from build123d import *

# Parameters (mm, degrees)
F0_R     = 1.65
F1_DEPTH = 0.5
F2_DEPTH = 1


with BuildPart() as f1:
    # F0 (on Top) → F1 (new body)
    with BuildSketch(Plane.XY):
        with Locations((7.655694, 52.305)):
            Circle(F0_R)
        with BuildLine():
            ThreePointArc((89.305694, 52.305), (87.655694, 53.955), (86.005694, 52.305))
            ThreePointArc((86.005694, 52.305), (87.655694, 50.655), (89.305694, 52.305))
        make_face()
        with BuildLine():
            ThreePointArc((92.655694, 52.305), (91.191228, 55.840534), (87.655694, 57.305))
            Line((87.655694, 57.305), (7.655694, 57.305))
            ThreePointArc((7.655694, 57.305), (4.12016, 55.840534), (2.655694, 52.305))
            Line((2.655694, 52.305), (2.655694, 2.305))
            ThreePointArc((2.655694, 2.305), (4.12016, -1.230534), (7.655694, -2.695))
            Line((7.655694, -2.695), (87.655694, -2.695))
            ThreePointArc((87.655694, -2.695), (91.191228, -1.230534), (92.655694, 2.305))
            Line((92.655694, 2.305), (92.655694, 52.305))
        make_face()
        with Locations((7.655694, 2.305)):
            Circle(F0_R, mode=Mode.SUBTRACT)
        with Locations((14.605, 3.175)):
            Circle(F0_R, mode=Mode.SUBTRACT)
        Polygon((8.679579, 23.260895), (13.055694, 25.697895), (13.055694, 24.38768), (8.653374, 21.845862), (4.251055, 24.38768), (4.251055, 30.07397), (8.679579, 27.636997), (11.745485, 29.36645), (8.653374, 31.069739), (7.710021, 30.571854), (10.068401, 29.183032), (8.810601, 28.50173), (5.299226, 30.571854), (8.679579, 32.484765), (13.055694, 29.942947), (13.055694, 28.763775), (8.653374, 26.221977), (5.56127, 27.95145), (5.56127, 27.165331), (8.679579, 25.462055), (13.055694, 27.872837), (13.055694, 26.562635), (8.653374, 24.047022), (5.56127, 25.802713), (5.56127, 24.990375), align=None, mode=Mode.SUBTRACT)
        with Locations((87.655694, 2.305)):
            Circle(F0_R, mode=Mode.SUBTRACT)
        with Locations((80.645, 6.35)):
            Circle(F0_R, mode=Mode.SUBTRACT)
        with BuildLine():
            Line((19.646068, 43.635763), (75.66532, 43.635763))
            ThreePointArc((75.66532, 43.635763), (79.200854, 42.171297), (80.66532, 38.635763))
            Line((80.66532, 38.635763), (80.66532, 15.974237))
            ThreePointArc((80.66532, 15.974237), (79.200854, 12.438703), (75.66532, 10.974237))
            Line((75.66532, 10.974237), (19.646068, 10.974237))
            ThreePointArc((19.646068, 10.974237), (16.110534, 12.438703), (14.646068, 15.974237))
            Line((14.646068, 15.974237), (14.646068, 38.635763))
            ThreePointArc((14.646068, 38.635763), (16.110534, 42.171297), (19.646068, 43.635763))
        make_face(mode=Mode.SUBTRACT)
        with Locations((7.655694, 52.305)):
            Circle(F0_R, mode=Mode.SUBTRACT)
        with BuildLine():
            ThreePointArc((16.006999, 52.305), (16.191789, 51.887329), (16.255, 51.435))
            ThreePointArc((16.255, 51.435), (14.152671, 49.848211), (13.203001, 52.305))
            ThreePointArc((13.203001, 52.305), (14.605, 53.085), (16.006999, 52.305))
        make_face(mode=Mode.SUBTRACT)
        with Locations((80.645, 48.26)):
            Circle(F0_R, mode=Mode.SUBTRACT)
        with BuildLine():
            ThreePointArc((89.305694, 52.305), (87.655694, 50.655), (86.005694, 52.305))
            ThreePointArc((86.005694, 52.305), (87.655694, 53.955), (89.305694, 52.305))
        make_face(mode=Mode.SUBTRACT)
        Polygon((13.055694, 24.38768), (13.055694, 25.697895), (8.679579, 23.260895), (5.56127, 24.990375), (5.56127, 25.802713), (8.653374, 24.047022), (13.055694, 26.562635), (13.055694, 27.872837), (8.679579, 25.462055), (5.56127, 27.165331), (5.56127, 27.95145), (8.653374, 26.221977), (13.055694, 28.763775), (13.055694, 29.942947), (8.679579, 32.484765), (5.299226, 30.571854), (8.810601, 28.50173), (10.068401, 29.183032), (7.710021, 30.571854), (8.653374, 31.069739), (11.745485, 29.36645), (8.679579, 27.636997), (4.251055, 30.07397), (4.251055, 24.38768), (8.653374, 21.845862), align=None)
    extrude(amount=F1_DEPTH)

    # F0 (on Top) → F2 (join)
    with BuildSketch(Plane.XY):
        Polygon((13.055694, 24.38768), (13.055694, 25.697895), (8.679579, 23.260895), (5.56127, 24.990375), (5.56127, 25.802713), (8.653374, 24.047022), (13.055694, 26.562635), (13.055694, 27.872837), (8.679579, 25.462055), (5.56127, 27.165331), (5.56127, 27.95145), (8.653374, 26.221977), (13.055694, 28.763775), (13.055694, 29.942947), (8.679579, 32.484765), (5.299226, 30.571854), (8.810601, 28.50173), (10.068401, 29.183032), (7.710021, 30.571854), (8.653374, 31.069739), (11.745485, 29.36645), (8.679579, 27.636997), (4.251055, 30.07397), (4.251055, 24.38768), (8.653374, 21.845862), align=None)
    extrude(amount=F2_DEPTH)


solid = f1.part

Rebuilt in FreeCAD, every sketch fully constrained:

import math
import FreeCAD as App
import Part
import Sketcher
Q = App.Units.Quantity

doc = App.newDocument("Part")
body = doc.addObject("PartDesign::Body", "Body")

# Sketch on XY plane
sketch1 = body.newObject("Sketcher::SketchObject", "Sketch")
sketch1.AttachmentSupport = (doc.getObject("XY_Plane"), [""])
sketch1.MapMode = "FlatFace"
sketch1.addGeometry(Part.ArcOfCircle(Part.Circle(App.Vector(87.7, 52.3, 0), App.Vector(0, 0, 1), 5), math.radians(0), math.radians(90)), False)
sketch1.addGeometry(Part.LineSegment(App.Vector(87.7, 57.3, 0), App.Vector(7.7, 57.3, 0)), False)
sketch1.addGeometry(Part.ArcOfCircle(Part.Circle(App.Vector(7.7, 52.3, 0), App.Vector(0, 0, 1), 5), math.radians(90), math.radians(180)), False)
sketch1.addGeometry(Part.LineSegment(App.Vector(2.7, 52.3, 0), App.Vector(2.7, 2.3, 0)), False)
sketch1.addGeometry(Part.ArcOfCircle(Part.Circle(App.Vector(7.7, 2.3, 0), App.Vector(0, 0, 1), 5), math.radians(180), math.radians(270)), False)
sketch1.addGeometry(Part.LineSegment(App.Vector(7.7, -2.7, 0), App.Vector(87.7, -2.7, 0)), False)
sketch1.addGeometry(Part.ArcOfCircle(Part.Circle(App.Vector(87.7, 2.3, 0), App.Vector(0, 0, 1), 5), math.radians(-90), math.radians(0)), False)
sketch1.addGeometry(Part.LineSegment(App.Vector(92.7, 2.3, 0), App.Vector(92.7, 52.3, 0)), False)
sketch1.addGeometry(Part.Circle(App.Vector(7.7, 2.3, 0), App.Vector(0, 0, 1), 1.6), False)
sketch1.addGeometry(Part.Circle(App.Vector(14.6, 3.2, 0), App.Vector(0, 0, 1), 1.6), False)
sketch1.addGeometry(Part.Circle(App.Vector(87.7, 2.3, 0), App.Vector(0, 0, 1), 1.6), False)
sketch1.addGeometry(Part.Circle(App.Vector(80.6, 6.3, 0), App.Vector(0, 0, 1), 1.6), False)
sketch1.addGeometry(Part.Circle(App.Vector(7.7, 52.3, 0), App.Vector(0, 0, 1), 1.6), False)
sketch1.addGeometry(Part.ArcOfCircle(Part.Circle(App.Vector(14.6, 51.4, 0), App.Vector(0, 0, 1), 1.7), math.radians(32), math.radians(148)), False)
sketch1.addGeometry(Part.ArcOfCircle(Part.Circle(App.Vector(14.6, 51.4, 0), App.Vector(0, 0, 1), 1.6), math.radians(0), math.radians(32)), False)
sketch1.addGeometry(Part.ArcOfCircle(Part.Circle(App.Vector(14.6, 51.4, 0), App.Vector(0, 0, 1), 1.7), math.radians(148), math.radians(360)), False)
sketch1.addGeometry(Part.ArcOfCircle(Part.Circle(App.Vector(19.6, 38.6, 0), App.Vector(0, 0, 1), 5), math.radians(90), math.radians(180)), False)
sketch1.addGeometry(Part.LineSegment(App.Vector(19.6, 43.6, 0), App.Vector(75.7, 43.6, 0)), False)
sketch1.addGeometry(Part.ArcOfCircle(Part.Circle(App.Vector(75.7, 38.6, 0), App.Vector(0, 0, 1), 5), math.radians(0), math.radians(90)), False)
sketch1.addGeometry(Part.LineSegment(App.Vector(80.7, 38.6, 0), App.Vector(80.7, 16, 0)), False)
sketch1.addGeometry(Part.ArcOfCircle(Part.Circle(App.Vector(75.7, 16, 0), App.Vector(0, 0, 1), 5), math.radians(-90), math.radians(0)), False)
sketch1.addGeometry(Part.LineSegment(App.Vector(75.7, 11, 0), App.Vector(19.6, 11, 0)), False)
sketch1.addGeometry(Part.ArcOfCircle(Part.Circle(App.Vector(19.6, 16, 0), App.Vector(0, 0, 1), 5), math.radians(180), math.radians(270)), False)
sketch1.addGeometry(Part.LineSegment(App.Vector(14.6, 16, 0), App.Vector(14.6, 38.6, 0)), False)
sketch1.addGeometry(Part.Circle(App.Vector(80.6, 48.3, 0), App.Vector(0, 0, 1), 1.6), False)
sketch1.addGeometry(Part.Circle(App.Vector(87.7, 52.3, 0), App.Vector(0, 0, 1), 1.6), False)
sketch1.addConstraint(Sketcher.Constraint("Tangent", 0, 2, 1, 1))
sketch1.addConstraint(Sketcher.Constraint("Tangent", 1, 2, 2, 1))
sketch1.addConstraint(Sketcher.Constraint("Tangent", 2, 2, 3, 1))
sketch1.addConstraint(Sketcher.Constraint("Tangent", 3, 2, 4, 1))
sketch1.addConstraint(Sketcher.Constraint("Tangent", 4, 2, 5, 1))
sketch1.addConstraint(Sketcher.Constraint("Tangent", 5, 2, 6, 1))
sketch1.addConstraint(Sketcher.Constraint("Tangent", 6, 2, 7, 1))
sketch1.addConstraint(Sketcher.Constraint("Tangent", 7, 2, 0, 1))
sketch1.addConstraint(Sketcher.Constraint("Tangent", 13, 1, 14, 2))
sketch1.addConstraint(Sketcher.Constraint("Tangent", 14, 1, 15, 2))
sketch1.addConstraint(Sketcher.Constraint("Tangent", 15, 1, 13, 2))
sketch1.addConstraint(Sketcher.Constraint("Tangent", 16, 1, 17, 1))
sketch1.addConstraint(Sketcher.Constraint("Tangent", 17, 2, 18, 2))
sketch1.addConstraint(Sketcher.Constraint("Tangent", 18, 1, 19, 1))
sketch1.addConstraint(Sketcher.Constraint("Tangent", 19, 2, 20, 2))
sketch1.addConstraint(Sketcher.Constraint("Tangent", 20, 1, 21, 1))
sketch1.addConstraint(Sketcher.Constraint("Tangent", 21, 2, 22, 2))
sketch1.addConstraint(Sketcher.Constraint("Tangent", 22, 1, 23, 1))
sketch1.addConstraint(Sketcher.Constraint("Tangent", 23, 2, 16, 2))
sketch1.addConstraint(Sketcher.Constraint("Horizontal", 1))
sketch1.addConstraint(Sketcher.Constraint("Vertical", 3))
sketch1.addConstraint(Sketcher.Constraint("Horizontal", 5))
sketch1.addConstraint(Sketcher.Constraint("Vertical", 7))
sketch1.addConstraint(Sketcher.Constraint("Horizontal", 17))
sketch1.addConstraint(Sketcher.Constraint("Vertical", 19))
sketch1.addConstraint(Sketcher.Constraint("Horizontal", 21))
sketch1.addConstraint(Sketcher.Constraint("Vertical", 23))
sketch1.addConstraint(Sketcher.Constraint("Coincident", 8, 3, 4, 3))
sketch1.addConstraint(Sketcher.Constraint("Coincident", 10, 3, 6, 3))
sketch1.addConstraint(Sketcher.Constraint("Coincident", 12, 3, 2, 3))
sketch1.addConstraint(Sketcher.Constraint("Coincident", 25, 3, 0, 3))
sketch1.addConstraint(Sketcher.Constraint("Equal", 0, 2))
sketch1.addConstraint(Sketcher.Constraint("Equal", 2, 4))
sketch1.addConstraint(Sketcher.Constraint("Equal", 4, 6))
sketch1.addConstraint(Sketcher.Constraint("Equal", 8, 9))
sketch1.addConstraint(Sketcher.Constraint("Equal", 9, 10))
sketch1.addConstraint(Sketcher.Constraint("Equal", 10, 11))
sketch1.addConstraint(Sketcher.Constraint("Equal", 11, 12))
sketch1.addConstraint(Sketcher.Constraint("Equal", 12, 13))
sketch1.addConstraint(Sketcher.Constraint("Equal", 6, 16))
sketch1.addConstraint(Sketcher.Constraint("Equal", 16, 18))
sketch1.addConstraint(Sketcher.Constraint("Equal", 18, 20))
sketch1.addConstraint(Sketcher.Constraint("Equal", 20, 22))
sketch1.addConstraint(Sketcher.Constraint("Equal", 15, 24))
sketch1.addConstraint(Sketcher.Constraint("Equal", 24, 25))
sketch1.addConstraint(Sketcher.Constraint("Horizontal", 7, 2, 13, 1))
sketch1.addConstraint(Sketcher.Constraint("Horizontal", 15, 3, 14, 1))
sketch1.addConstraint(Sketcher.Constraint("Horizontal", 13, 1, 15, 1))
sketch1.addConstraint(Sketcher.Constraint("Vertical", 9, 3, 13, 3))
sketch1.addConstraint(Sketcher.Constraint("Vertical", 11, 3, 24, 3))
sketch1.addConstraint(Sketcher.Constraint("Radius", 0, Q("5 mm")))
sketch1.addConstraint(Sketcher.Constraint("Diameter", 8, Q("3.3 mm")))
sketch1.addConstraint(Sketcher.Constraint("DistanceX", 1, 2, 1, 1, Q("80 mm")))
sketch1.addConstraint(Sketcher.Constraint("DistanceY", 3, 2, 3, 1, Q("50 mm")))
sketch1.addConstraint(Sketcher.Constraint("DistanceY", -1, 1, 11, 3, Q("6.35 mm")))
sketch1.addConstraint(Sketcher.Constraint("DistanceY", -1, 1, 24, 3, Q("48.26 mm")))
sketch1.addConstraint(Sketcher.Constraint("DistanceY", 8, 3, 9, 3, Q("0.87 mm")))
sketch1.addConstraint(Sketcher.Constraint("DistanceX", 9, 3, 11, 3, Q("66.04 mm")))
sketch1.addConstraint(Sketcher.Constraint("DistanceY", 13, 3, 12, 3, Q("0.870001 mm")))
sketch1.addConstraint(Sketcher.Constraint("DistanceY", -1, 1, 0, 3, Q("52.305 mm")))
sketch1.addConstraint(Sketcher.Constraint("DistanceX", -1, 1, 9, 3, Q("14.605 mm")))
sketch1.addConstraint(Sketcher.Constraint("DistanceX", 17, 1, 17, 2, Q("56.019252 mm")))
sketch1.addConstraint(Sketcher.Constraint("DistanceY", 19, 2, 19, 1, Q("22.661526 mm")))
sketch1.addConstraint(Sketcher.Constraint("DistanceX", -1, 1, 18, 3, Q("75.66532 mm")))
sketch1.addConstraint(Sketcher.Constraint("DistanceX", 2, 3, 14, 3, Q("6.949308 mm")))
sketch1.addConstraint(Sketcher.Constraint("DistanceY", 16, 1, 14, 3, Q("7.799238 mm")))
pad1 = body.newObject("PartDesign::Pad", "Pad")
pad1.Profile = sketch1
pad1.Length = 0.5

# Sketch on XY plane
sketch2 = body.newObject("Sketcher::SketchObject", "Sketch001")
sketch2.AttachmentSupport = (doc.getObject("XY_Plane"), [""])
sketch2.MapMode = "FlatFace"
sketch2.addGeometry(Part.LineSegment(App.Vector(13.1, 24.4, 0), App.Vector(13.1, 25.7, 0)), False)
sketch2.addGeometry(Part.LineSegment(App.Vector(13.1, 25.7, 0), App.Vector(8.7, 23.3, 0)), False)
sketch2.addGeometry(Part.LineSegment(App.Vector(8.7, 23.3, 0), App.Vector(5.6, 25, 0)), False)
sketch2.addGeometry(Part.LineSegment(App.Vector(5.6, 25, 0), App.Vector(5.6, 25.8, 0)), False)
sketch2.addGeometry(Part.LineSegment(App.Vector(5.6, 25.8, 0), App.Vector(8.7, 24, 0)), False)
sketch2.addGeometry(Part.LineSegment(App.Vector(8.7, 24, 0), App.Vector(13.1, 26.6, 0)), False)
sketch2.addGeometry(Part.LineSegment(App.Vector(13.1, 26.6, 0), App.Vector(13.1, 27.9, 0)), False)
sketch2.addGeometry(Part.LineSegment(App.Vector(13.1, 27.9, 0), App.Vector(8.7, 25.5, 0)), False)
sketch2.addGeometry(Part.LineSegment(App.Vector(8.7, 25.5, 0), App.Vector(5.6, 27.2, 0)), False)
sketch2.addGeometry(Part.LineSegment(App.Vector(5.6, 27.2, 0), App.Vector(5.6, 28, 0)), False)
sketch2.addGeometry(Part.LineSegment(App.Vector(5.6, 28, 0), App.Vector(8.7, 26.2, 0)), False)
sketch2.addGeometry(Part.LineSegment(App.Vector(8.7, 26.2, 0), App.Vector(13.1, 28.8, 0)), False)
sketch2.addGeometry(Part.LineSegment(App.Vector(13.1, 28.8, 0), App.Vector(13.1, 29.9, 0)), False)
sketch2.addGeometry(Part.LineSegment(App.Vector(13.1, 29.9, 0), App.Vector(8.7, 32.5, 0)), False)
sketch2.addGeometry(Part.LineSegment(App.Vector(8.7, 32.5, 0), App.Vector(5.3, 30.6, 0)), False)
sketch2.addGeometry(Part.LineSegment(App.Vector(5.3, 30.6, 0), App.Vector(8.8, 28.5, 0)), False)
sketch2.addGeometry(Part.LineSegment(App.Vector(8.8, 28.5, 0), App.Vector(10.1, 29.2, 0)), False)
sketch2.addGeometry(Part.LineSegment(App.Vector(10.1, 29.2, 0), App.Vector(7.7, 30.6, 0)), False)
sketch2.addGeometry(Part.LineSegment(App.Vector(7.7, 30.6, 0), App.Vector(8.7, 31.1, 0)), False)
sketch2.addGeometry(Part.LineSegment(App.Vector(8.7, 31.1, 0), App.Vector(11.7, 29.4, 0)), False)
sketch2.addGeometry(Part.LineSegment(App.Vector(11.7, 29.4, 0), App.Vector(8.7, 27.6, 0)), False)
sketch2.addGeometry(Part.LineSegment(App.Vector(8.7, 27.6, 0), App.Vector(4.3, 30.1, 0)), False)
sketch2.addGeometry(Part.LineSegment(App.Vector(4.3, 30.1, 0), App.Vector(4.3, 24.4, 0)), False)
sketch2.addGeometry(Part.LineSegment(App.Vector(4.3, 24.4, 0), App.Vector(8.7, 21.8, 0)), False)
sketch2.addGeometry(Part.LineSegment(App.Vector(8.7, 21.8, 0), App.Vector(13.1, 24.4, 0)), False)
sketch2.addConstraint(Sketcher.Constraint("Coincident", 0, 2, 1, 1))
sketch2.addConstraint(Sketcher.Constraint("Coincident", 1, 2, 2, 1))
sketch2.addConstraint(Sketcher.Constraint("Coincident", 2, 2, 3, 1))
sketch2.addConstraint(Sketcher.Constraint("Coincident", 3, 2, 4, 1))
sketch2.addConstraint(Sketcher.Constraint("Coincident", 4, 2, 5, 1))
sketch2.addConstraint(Sketcher.Constraint("Coincident", 5, 2, 6, 1))
sketch2.addConstraint(Sketcher.Constraint("Coincident", 6, 2, 7, 1))
sketch2.addConstraint(Sketcher.Constraint("Coincident", 7, 2, 8, 1))
sketch2.addConstraint(Sketcher.Constraint("Coincident", 8, 2, 9, 1))
sketch2.addConstraint(Sketcher.Constraint("Coincident", 9, 2, 10, 1))
sketch2.addConstraint(Sketcher.Constraint("Coincident", 10, 2, 11, 1))
sketch2.addConstraint(Sketcher.Constraint("Coincident", 11, 2, 12, 1))
sketch2.addConstraint(Sketcher.Constraint("Coincident", 12, 2, 13, 1))
sketch2.addConstraint(Sketcher.Constraint("Coincident", 13, 2, 14, 1))
sketch2.addConstraint(Sketcher.Constraint("Coincident", 14, 2, 15, 1))
sketch2.addConstraint(Sketcher.Constraint("Coincident", 15, 2, 16, 1))
sketch2.addConstraint(Sketcher.Constraint("Coincident", 16, 2, 17, 1))
sketch2.addConstraint(Sketcher.Constraint("Coincident", 17, 2, 18, 1))
sketch2.addConstraint(Sketcher.Constraint("Coincident", 18, 2, 19, 1))
sketch2.addConstraint(Sketcher.Constraint("Coincident", 19, 2, 20, 1))
sketch2.addConstraint(Sketcher.Constraint("Coincident", 20, 2, 21, 1))
sketch2.addConstraint(Sketcher.Constraint("Coincident", 21, 2, 22, 1))
sketch2.addConstraint(Sketcher.Constraint("Coincident", 22, 2, 23, 1))
sketch2.addConstraint(Sketcher.Constraint("Coincident", 23, 2, 24, 1))
sketch2.addConstraint(Sketcher.Constraint("Coincident", 24, 2, 0, 1))
sketch2.addConstraint(Sketcher.Constraint("Vertical", 0))
sketch2.addConstraint(Sketcher.Constraint("Vertical", 3))
sketch2.addConstraint(Sketcher.Constraint("Vertical", 6))
sketch2.addConstraint(Sketcher.Constraint("Vertical", 9))
sketch2.addConstraint(Sketcher.Constraint("Vertical", 12))
sketch2.addConstraint(Sketcher.Constraint("Vertical", 22))
sketch2.addConstraint(Sketcher.Constraint("Horizontal", 14, 2, 17, 2))
sketch2.addConstraint(Sketcher.Constraint("Horizontal", 22, 2, 24, 2))
sketch2.addConstraint(Sketcher.Constraint("Vertical", 0, 2, 5, 2))
sketch2.addConstraint(Sketcher.Constraint("Vertical", 1, 2, 7, 2))
sketch2.addConstraint(Sketcher.Constraint("Vertical", 3, 2, 8, 2))
sketch2.addConstraint(Sketcher.Constraint("Vertical", 4, 2, 10, 2))
sketch2.addConstraint(Sketcher.Constraint("Vertical", 6, 2, 11, 2))
sketch2.addConstraint(Sketcher.Constraint("Vertical", 7, 2, 13, 2))
sketch2.addConstraint(Sketcher.Constraint("Vertical", 10, 2, 18, 2))
sketch2.addConstraint(Sketcher.Constraint("Vertical", 13, 2, 20, 2))
sketch2.addConstraint(Sketcher.Constraint("Vertical", 18, 2, 23, 2))
sketch2.addConstraint(Sketcher.Constraint("Equal", 23, 24))
sketch2.addConstraint(Sketcher.Constraint("DistanceY", 1, 2, 0, 2, Q("2.437 mm")))
sketch2.addConstraint(Sketcher.Constraint("DistanceY", 3, 1, 3, 2, Q("0.812338 mm")))
sketch2.addConstraint(Sketcher.Constraint("DistanceY", 9, 1, 9, 2, Q("0.786119 mm")))
sketch2.addConstraint(Sketcher.Constraint("DistanceY", 22, 2, 22, 1, Q("5.68629 mm")))
sketch2.addConstraint(Sketcher.Constraint("DistanceX", -1, 1, 15, 2, Q("8.810601 mm")))
sketch2.addConstraint(Sketcher.Constraint("DistanceX", -1, 1, 16, 2, Q("10.068401 mm")))
sketch2.addConstraint(Sketcher.Constraint("DistanceY", 10, 2, 11, 2, Q("2.541798 mm")))
sketch2.addConstraint(Sketcher.Constraint("DistanceY", 8, 2, 15, 2, Q("1.336399 mm")))
sketch2.addConstraint(Sketcher.Constraint("Distance", 4, Q("3.555778 mm")))
sketch2.addConstraint(Sketcher.Constraint("Distance", 11, Q("5.08342 mm")))
sketch2.addConstraint(Sketcher.Constraint("Distance", 14, Q("3.884072 mm")))
sketch2.addConstraint(Sketcher.Constraint("Distance", 15, Q("4.076171 mm")))
sketch2.addConstraint(Sketcher.Constraint("Distance", 17, Q("2.736929 mm")))
sketch2.addConstraint(Sketcher.Constraint("Distance", 18, Q("1.066679 mm")))
sketch2.addConstraint(Sketcher.Constraint("Distance", 23, Q("5.083429 mm")))
sketch2.addConstraint(Sketcher.Constraint("DistanceY", 0, 1, 0, 2, Q("1.310215 mm")))
sketch2.addConstraint(Sketcher.Constraint("DistanceY", 6, 1, 6, 2, Q("1.310202 mm")))
sketch2.addConstraint(Sketcher.Constraint("DistanceY", 12, 1, 12, 2, Q("1.179172 mm")))
sketch2.addConstraint(Sketcher.Constraint("DistanceX", -1, 1, 1, 2, Q("8.679579 mm")))
sketch2.addConstraint(Sketcher.Constraint("DistanceX", -1, 1, 2, 2, Q("5.56127 mm")))
sketch2.addConstraint(Sketcher.Constraint("DistanceY", -1, 1, 4, 2, Q("24.047022 mm")))
sketch2.addConstraint(Sketcher.Constraint("DistanceY", -1, 1, 8, 2, Q("27.165331 mm")))
sketch2.addConstraint(Sketcher.Constraint("DistanceX", -1, 1, 17, 2, Q("7.710021 mm")))
sketch2.addConstraint(Sketcher.Constraint("DistanceY", -1, 1, 18, 2, Q("31.069739 mm")))
sketch2.addConstraint(Sketcher.Constraint("DistanceY", -1, 1, 19, 2, Q("29.36645 mm")))
sketch2.addConstraint(Sketcher.Constraint("DistanceY", -1, 1, 21, 2, Q("30.07397 mm")))
sketch2.addConstraint(Sketcher.Constraint("DistanceY", 1, 2, 2, 2, Q("1.72948 mm")))
sketch2.addConstraint(Sketcher.Constraint("DistanceY", 0, 2, 5, 2, Q("0.86474 mm")))
sketch2.addConstraint(Sketcher.Constraint("DistanceY", 1, 2, 7, 2, Q("2.20116 mm")))
sketch2.addConstraint(Sketcher.Constraint("DistanceY", 7, 2, 10, 2, Q("0.759922 mm")))
sketch2.addConstraint(Sketcher.Constraint("DistanceX", 19, 2, 12, 2, Q("1.310209 mm")))
sketch2.addConstraint(Sketcher.Constraint("DistanceY", 10, 2, 20, 2, Q("1.41502 mm")))
pad2 = body.newObject("PartDesign::Pad", "Pad001")
pad2.Profile = sketch2
pad2.Length = 1

doc.recompute()
